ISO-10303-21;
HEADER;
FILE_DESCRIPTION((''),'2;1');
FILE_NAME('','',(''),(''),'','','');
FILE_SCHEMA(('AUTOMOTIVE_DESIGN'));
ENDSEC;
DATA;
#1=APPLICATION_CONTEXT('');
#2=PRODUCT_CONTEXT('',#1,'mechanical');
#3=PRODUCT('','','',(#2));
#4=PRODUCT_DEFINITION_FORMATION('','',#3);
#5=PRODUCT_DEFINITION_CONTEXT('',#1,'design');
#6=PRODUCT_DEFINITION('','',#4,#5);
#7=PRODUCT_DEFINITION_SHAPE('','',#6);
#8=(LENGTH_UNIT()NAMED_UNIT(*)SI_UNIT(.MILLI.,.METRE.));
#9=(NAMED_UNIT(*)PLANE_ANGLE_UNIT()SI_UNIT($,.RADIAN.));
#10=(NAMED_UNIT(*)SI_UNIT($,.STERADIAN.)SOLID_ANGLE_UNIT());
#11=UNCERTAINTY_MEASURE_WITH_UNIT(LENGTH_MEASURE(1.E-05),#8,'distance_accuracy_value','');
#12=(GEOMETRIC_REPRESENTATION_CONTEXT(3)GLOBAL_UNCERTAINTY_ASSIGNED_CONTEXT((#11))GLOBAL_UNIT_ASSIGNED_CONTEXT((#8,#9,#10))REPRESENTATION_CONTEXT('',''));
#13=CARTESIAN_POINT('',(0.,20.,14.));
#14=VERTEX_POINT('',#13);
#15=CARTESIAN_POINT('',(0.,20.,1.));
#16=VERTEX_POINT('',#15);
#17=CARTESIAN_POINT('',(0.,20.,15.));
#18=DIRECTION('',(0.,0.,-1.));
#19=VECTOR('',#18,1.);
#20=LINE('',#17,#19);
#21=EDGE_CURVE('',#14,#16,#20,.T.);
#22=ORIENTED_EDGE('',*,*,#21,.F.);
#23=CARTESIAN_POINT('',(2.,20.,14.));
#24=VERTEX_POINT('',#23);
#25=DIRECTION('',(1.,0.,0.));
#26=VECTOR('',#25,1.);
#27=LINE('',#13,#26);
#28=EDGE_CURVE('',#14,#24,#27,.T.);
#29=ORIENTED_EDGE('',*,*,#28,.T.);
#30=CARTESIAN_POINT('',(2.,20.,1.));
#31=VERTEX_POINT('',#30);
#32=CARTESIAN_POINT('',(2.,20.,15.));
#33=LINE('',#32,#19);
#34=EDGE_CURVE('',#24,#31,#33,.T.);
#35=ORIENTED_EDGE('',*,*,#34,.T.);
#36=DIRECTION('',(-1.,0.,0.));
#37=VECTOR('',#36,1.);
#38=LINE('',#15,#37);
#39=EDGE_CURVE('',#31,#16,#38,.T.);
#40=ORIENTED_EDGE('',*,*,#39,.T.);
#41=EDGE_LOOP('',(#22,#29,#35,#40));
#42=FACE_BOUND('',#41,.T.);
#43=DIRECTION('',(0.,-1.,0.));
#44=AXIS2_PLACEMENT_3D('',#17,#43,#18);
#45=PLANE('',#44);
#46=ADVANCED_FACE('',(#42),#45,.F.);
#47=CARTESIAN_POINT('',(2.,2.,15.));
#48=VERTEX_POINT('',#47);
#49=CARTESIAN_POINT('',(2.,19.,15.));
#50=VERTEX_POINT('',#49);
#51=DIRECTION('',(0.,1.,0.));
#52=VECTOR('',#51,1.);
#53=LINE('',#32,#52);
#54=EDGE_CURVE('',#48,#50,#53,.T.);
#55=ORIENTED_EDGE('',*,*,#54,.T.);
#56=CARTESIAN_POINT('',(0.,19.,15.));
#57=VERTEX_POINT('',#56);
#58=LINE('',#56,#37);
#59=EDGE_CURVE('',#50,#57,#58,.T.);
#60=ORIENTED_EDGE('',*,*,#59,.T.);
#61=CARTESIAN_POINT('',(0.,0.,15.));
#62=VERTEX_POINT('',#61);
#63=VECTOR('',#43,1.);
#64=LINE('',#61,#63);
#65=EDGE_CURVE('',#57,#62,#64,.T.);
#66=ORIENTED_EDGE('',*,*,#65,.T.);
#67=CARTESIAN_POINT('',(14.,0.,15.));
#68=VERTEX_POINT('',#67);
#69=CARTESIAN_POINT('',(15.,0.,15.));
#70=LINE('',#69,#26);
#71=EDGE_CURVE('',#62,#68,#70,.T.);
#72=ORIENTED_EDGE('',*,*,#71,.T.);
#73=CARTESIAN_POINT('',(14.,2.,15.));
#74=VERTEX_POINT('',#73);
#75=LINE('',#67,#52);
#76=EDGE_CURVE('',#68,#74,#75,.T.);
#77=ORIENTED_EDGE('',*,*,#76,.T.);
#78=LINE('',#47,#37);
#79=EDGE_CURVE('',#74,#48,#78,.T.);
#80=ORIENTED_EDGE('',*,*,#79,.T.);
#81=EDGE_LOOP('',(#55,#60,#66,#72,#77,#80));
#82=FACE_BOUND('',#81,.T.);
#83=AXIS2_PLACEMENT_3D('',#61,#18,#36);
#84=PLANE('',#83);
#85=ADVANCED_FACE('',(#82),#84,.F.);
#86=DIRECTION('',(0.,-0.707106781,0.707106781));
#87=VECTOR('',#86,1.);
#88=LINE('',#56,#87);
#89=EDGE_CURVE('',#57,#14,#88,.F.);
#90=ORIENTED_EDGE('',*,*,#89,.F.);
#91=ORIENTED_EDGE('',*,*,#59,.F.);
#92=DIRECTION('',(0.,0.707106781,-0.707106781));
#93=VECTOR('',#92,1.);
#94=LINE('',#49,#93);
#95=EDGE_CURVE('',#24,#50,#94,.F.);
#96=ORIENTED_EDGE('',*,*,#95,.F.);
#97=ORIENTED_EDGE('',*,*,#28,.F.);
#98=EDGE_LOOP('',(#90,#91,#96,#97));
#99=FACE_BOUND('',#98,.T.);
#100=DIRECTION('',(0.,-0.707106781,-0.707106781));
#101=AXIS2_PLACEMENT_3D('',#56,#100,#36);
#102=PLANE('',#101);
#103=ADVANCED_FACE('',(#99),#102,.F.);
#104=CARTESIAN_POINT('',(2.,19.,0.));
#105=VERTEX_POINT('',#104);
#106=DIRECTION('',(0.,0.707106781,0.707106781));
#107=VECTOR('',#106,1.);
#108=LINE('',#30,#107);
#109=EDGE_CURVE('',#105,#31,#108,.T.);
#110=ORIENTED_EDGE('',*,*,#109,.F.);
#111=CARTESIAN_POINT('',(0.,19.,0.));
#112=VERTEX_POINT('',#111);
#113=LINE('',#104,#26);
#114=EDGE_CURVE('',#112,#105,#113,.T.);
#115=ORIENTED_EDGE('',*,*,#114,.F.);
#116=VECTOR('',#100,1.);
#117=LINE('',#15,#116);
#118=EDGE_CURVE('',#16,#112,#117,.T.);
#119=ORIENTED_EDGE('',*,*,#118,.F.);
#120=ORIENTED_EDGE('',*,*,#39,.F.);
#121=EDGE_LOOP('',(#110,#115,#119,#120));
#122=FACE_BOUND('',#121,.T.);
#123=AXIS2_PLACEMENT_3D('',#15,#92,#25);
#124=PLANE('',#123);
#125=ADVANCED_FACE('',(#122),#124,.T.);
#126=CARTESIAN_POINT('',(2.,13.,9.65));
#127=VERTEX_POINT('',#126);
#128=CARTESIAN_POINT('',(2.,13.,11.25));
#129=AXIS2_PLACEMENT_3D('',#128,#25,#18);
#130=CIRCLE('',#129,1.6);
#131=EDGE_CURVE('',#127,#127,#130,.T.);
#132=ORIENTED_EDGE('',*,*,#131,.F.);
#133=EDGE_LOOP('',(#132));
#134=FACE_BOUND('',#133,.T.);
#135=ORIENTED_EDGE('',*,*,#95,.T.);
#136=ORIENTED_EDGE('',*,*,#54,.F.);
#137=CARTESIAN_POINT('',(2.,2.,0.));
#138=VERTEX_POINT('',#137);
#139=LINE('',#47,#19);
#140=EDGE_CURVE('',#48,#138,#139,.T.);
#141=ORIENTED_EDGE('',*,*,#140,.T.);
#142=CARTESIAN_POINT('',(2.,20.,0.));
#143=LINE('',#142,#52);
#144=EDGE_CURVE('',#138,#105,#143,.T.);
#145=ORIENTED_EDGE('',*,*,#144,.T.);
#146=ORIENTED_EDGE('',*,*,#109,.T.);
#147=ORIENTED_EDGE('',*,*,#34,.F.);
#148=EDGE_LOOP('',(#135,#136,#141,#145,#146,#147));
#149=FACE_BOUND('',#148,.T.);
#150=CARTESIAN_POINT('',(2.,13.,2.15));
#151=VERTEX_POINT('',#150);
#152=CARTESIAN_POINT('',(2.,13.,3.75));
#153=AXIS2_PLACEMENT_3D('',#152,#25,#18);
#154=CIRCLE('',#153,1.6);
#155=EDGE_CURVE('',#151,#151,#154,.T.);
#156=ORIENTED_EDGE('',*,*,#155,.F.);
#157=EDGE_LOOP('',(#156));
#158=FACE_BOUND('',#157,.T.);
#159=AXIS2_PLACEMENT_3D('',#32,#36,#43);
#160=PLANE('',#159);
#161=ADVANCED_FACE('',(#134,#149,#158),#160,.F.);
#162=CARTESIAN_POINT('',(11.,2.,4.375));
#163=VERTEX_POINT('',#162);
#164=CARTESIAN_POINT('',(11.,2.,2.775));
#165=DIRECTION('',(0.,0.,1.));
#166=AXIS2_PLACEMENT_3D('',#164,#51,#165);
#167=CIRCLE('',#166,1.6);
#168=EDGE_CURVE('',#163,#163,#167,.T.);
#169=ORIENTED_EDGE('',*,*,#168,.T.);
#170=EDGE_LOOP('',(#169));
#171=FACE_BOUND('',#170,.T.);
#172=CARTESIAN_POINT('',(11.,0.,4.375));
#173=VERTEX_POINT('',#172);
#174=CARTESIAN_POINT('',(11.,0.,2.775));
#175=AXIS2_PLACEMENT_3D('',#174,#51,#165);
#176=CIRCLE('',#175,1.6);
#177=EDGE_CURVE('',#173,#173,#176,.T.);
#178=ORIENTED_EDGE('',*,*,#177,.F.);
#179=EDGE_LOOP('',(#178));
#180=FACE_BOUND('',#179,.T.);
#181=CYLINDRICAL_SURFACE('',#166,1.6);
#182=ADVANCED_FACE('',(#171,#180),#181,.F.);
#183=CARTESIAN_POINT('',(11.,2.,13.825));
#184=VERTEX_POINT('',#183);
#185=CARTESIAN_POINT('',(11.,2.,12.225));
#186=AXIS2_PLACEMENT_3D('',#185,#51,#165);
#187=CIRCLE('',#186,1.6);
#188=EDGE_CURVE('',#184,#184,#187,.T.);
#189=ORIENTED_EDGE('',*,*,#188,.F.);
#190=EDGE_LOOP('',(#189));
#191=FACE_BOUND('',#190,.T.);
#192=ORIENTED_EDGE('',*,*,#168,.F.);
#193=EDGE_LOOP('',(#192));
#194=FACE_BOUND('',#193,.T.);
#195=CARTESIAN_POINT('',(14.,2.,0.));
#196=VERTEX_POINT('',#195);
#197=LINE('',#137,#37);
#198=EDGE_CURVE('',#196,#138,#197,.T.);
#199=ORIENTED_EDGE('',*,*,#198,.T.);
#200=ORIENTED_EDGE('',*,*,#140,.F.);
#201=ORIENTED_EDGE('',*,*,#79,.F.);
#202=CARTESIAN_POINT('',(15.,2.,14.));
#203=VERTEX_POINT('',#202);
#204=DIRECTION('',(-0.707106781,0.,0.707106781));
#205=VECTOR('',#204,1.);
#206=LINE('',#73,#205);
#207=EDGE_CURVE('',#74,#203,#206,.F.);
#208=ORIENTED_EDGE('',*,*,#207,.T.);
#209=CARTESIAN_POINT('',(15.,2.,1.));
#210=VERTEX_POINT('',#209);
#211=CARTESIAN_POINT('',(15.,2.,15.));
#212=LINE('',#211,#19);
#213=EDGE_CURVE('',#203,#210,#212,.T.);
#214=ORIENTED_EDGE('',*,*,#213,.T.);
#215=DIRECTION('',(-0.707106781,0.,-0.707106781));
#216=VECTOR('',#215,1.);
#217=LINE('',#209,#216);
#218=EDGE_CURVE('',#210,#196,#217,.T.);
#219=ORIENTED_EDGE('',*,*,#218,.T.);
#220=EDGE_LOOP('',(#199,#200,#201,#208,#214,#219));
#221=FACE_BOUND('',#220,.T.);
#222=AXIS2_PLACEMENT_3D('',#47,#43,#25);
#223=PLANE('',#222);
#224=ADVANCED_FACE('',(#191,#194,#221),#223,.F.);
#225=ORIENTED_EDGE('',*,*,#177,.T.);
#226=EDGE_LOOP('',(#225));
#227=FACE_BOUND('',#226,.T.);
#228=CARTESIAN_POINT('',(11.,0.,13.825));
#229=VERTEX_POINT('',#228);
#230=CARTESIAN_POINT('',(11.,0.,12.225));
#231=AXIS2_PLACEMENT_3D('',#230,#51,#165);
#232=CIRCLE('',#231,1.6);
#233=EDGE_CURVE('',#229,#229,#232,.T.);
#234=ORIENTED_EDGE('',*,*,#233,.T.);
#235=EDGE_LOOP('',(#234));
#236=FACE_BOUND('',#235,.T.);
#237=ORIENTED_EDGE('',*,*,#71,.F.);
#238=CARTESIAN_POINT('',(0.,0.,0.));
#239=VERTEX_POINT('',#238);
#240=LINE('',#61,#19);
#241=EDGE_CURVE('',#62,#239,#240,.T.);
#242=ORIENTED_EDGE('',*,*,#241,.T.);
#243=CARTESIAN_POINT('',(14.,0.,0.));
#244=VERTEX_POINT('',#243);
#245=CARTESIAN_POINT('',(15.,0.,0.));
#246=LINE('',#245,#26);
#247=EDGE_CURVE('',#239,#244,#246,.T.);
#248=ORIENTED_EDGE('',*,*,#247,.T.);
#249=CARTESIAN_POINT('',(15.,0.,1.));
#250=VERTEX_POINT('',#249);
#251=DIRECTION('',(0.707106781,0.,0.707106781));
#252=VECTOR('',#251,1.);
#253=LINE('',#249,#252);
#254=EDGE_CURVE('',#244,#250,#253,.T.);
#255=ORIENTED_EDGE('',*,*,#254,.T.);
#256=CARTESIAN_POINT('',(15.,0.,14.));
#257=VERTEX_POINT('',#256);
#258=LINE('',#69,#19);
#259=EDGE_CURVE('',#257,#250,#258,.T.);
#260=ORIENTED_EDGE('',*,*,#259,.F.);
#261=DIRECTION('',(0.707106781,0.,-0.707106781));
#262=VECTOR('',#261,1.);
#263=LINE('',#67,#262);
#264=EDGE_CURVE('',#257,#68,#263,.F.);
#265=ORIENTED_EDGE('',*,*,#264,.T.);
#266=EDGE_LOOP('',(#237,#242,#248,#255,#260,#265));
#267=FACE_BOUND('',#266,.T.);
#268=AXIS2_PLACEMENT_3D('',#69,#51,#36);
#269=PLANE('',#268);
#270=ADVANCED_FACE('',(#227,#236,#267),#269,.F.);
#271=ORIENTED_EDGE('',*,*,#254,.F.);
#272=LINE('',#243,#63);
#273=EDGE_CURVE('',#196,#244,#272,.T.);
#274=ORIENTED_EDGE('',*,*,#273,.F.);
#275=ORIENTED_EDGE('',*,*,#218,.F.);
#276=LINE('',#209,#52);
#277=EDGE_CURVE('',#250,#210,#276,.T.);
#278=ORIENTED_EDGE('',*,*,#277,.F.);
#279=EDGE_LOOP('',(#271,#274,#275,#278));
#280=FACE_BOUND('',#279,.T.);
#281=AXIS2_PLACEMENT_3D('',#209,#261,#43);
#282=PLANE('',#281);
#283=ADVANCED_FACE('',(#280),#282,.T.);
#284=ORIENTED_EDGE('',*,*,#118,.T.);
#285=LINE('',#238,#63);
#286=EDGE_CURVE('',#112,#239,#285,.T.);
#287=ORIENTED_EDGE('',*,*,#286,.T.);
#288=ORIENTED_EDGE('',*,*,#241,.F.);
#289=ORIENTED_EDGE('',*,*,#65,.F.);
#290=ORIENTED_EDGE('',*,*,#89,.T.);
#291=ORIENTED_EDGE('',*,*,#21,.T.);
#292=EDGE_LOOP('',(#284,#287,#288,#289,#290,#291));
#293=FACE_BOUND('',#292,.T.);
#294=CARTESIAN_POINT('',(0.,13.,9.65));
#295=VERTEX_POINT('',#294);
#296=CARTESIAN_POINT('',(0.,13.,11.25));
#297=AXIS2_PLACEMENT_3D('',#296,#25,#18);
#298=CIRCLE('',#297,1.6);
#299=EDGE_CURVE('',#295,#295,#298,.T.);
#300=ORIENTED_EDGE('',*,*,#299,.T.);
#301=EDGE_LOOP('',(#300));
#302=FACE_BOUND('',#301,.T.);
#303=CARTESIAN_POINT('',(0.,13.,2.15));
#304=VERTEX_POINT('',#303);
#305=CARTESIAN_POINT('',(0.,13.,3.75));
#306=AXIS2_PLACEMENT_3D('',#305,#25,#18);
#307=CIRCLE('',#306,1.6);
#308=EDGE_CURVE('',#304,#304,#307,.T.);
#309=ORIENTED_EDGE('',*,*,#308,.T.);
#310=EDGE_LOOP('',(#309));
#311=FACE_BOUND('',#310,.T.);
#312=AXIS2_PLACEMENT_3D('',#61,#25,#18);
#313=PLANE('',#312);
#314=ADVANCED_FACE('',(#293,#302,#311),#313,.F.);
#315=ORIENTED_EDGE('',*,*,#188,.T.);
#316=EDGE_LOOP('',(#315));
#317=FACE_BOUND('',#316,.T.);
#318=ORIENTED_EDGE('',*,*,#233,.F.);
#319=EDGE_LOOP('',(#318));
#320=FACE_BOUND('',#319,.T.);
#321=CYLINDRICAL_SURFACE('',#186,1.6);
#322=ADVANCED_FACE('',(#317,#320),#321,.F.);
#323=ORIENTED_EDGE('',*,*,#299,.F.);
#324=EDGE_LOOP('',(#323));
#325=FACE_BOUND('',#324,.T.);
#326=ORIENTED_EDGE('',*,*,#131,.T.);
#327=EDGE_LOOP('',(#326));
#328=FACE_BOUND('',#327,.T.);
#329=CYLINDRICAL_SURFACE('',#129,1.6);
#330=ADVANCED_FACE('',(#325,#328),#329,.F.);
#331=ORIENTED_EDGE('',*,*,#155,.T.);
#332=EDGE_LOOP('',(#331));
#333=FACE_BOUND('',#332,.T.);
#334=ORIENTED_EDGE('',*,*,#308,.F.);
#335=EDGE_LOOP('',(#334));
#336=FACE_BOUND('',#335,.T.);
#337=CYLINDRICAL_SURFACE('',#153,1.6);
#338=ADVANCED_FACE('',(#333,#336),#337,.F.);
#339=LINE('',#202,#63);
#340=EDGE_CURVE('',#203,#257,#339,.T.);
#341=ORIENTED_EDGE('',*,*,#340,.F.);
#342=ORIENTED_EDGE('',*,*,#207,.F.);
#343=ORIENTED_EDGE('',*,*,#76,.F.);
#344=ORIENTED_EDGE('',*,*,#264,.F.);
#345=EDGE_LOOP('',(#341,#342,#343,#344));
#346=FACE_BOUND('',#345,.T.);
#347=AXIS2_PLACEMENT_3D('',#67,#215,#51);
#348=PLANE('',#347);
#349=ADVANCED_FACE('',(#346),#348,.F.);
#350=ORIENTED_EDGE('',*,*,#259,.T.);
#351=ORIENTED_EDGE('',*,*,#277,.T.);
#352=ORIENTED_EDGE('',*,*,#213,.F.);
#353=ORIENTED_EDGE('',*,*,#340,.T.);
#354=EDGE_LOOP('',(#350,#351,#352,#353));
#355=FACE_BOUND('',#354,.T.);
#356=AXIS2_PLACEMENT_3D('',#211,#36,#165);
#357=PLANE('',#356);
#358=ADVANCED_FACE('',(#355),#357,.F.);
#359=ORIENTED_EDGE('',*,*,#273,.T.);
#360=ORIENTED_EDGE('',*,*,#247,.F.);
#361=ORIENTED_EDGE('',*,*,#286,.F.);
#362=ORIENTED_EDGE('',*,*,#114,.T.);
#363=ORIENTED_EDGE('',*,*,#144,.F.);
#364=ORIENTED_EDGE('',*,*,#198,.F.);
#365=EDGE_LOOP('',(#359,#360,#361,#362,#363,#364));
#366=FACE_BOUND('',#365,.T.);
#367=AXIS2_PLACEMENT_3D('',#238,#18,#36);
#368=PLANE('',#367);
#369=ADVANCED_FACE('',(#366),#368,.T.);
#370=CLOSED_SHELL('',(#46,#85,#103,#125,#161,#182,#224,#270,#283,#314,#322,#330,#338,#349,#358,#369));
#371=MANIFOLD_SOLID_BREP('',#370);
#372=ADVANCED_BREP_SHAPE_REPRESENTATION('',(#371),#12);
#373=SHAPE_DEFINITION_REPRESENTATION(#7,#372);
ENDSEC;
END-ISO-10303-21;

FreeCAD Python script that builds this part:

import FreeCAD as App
import Part
import Sketcher
Q = App.Units.Quantity


def edges_at(feature, points):
    """Names of the edges that pass closest to the given points."""
    edges = feature.Shape.Edges
    near = lambda p: min(range(len(edges)), key=lambda i: edges[i].distToShape(Part.Vertex(*p))[0])
    return sorted({f"Edge{near(p) + 1}" for p in points})

doc = App.newDocument("Part")
params = doc.addObject("Spreadsheet::Sheet", "Params")
for row, (alias, value) in enumerate([
    ("sketch1_width", "15 mm"),
    ("sketch1_width2", "13 mm"),
    ("sketch1_height", "20 mm"),
    ("pad1_length", "15 mm"),
    ("chamfer_size", "1 mm"),
    ("sketch2_diameter", "3.2 mm"),
    ("hole_diameter", "3.2 mm"),
    ("sketch3_diameter", "3.2 mm"),
    ("hole2_diameter", "3.2 mm"),
], start=1):
    params.set(f"A{row}", alias)
    params.set(f"B{row}", "=" + value)
    params.setAlias(f"B{row}", alias)

body = doc.addObject("PartDesign::Body", "Body")

sketch1 = doc.addObject("Sketcher::SketchObject", "Sketch")
body.addObject(sketch1)
sketch1.AttachmentSupport = (doc.XY_Plane, [""])
sketch1.MapMode = "FlatFace"
sketch1.addGeometry(Part.LineSegment(App.Vector(0, 20, 0), App.Vector(0, 0, 0)), False)
sketch1.addGeometry(Part.LineSegment(App.Vector(0, 0, 0), App.Vector(15, 0, 0)), False)
sketch1.addGeometry(Part.LineSegment(App.Vector(15, 0, 0), App.Vector(15, 2, 0)), False)
sketch1.addGeometry(Part.LineSegment(App.Vector(15, 2, 0), App.Vector(2, 2, 0)), False)
sketch1.addGeometry(Part.LineSegment(App.Vector(2, 2, 0), App.Vector(2, 20, 0)), False)
sketch1.addGeometry(Part.LineSegment(App.Vector(2, 20, 0), App.Vector(0, 20, 0)), False)
sketch1.addConstraint(Sketcher.Constraint("Coincident", 0, 2, 1, 1))
sketch1.addConstraint(Sketcher.Constraint("Coincident", 1, 2, 2, 1))
sketch1.addConstraint(Sketcher.Constraint("Coincident", 2, 2, 3, 1))
sketch1.addConstraint(Sketcher.Constraint("Coincident", 3, 2, 4, 1))
sketch1.addConstraint(Sketcher.Constraint("Coincident", 4, 2, 5, 1))
sketch1.addConstraint(Sketcher.Constraint("Coincident", 5, 2, 0, 1))
sketch1.addConstraint(Sketcher.Constraint("Vertical", 0))
sketch1.addConstraint(Sketcher.Constraint("Horizontal", 1))
sketch1.addConstraint(Sketcher.Constraint("Vertical", 2))
sketch1.addConstraint(Sketcher.Constraint("Horizontal", 3))
sketch1.addConstraint(Sketcher.Constraint("Vertical", 4))
sketch1.addConstraint(Sketcher.Constraint("Horizontal", 5))
sketch1.addConstraint(Sketcher.Constraint("Coincident", 0, 2, -1, 1))
sketch1.addConstraint(Sketcher.Constraint("Equal", 5, 2))
sketch1.addConstraint(Sketcher.Constraint("DistanceX", 1, 1, 1, 2, Q("15 mm")))
sketch1.addConstraint(Sketcher.Constraint("DistanceX", 3, 2, 3, 1, Q("13 mm")))
sketch1.addConstraint(Sketcher.Constraint("DistanceY", 0, 2, 0, 1, Q("20 mm")))
sketch1.setExpression("Constraints[14]", "Params.sketch1_width")
sketch1.setExpression("Constraints[15]", "Params.sketch1_width2")
sketch1.setExpression("Constraints[16]", "Params.sketch1_height")
pad1 = doc.addObject("PartDesign::Pad", "Pad")
body.addObject(pad1)
pad1.Profile = sketch1
pad1.setExpression("Length", "Params.pad1_length")
doc.recompute()

chamfer = doc.addObject("PartDesign::Chamfer", "Chamfer")
body.addObject(chamfer)
chamfer.Base = (pad1, edges_at(pad1, [
    (1, 20, 15),
    (1, 20, 0),
    (15, 1, 15),
    (15, 1, 0),
]))
chamfer.setExpression("Size", "Params.chamfer_size")

sketch2 = doc.addObject("Sketcher::SketchObject", "Sketch001")
body.addObject(sketch2)
sketch2.AttachmentSupport = (doc.XZ_Plane, [""])
sketch2.MapMode = "FlatFace"
sketch2.AttachmentOffset = App.Placement(App.Vector(0, 0, -2), App.Rotation())
sketch2.addGeometry(Part.Circle(App.Vector(11, 2.775, 0), App.Vector(0, 0, 1), 1.6), False)
sketch2.addGeometry(Part.Circle(App.Vector(11, 12.225, 0), App.Vector(0, 0, 1), 1.6), False)
sketch2.addConstraint(Sketcher.Constraint("Equal", 0, 1))
sketch2.addConstraint(Sketcher.Constraint("Vertical", 0, 3, 1, 3))
sketch2.addConstraint(Sketcher.Constraint("Diameter", 0, Q("3.2 mm")))
sketch2.addConstraint(Sketcher.Constraint("DistanceX", -1, 1, 0, 3, Q("11 mm")))
sketch2.addConstraint(Sketcher.Constraint("DistanceY", 0, 3, 1, 3, Q("9.45 mm")))
sketch2.addConstraint(Sketcher.Constraint("DistanceY", -1, 1, 0, 3, Q("2.775 mm")))
sketch2.setExpression("Constraints[2]", "Params.sketch2_diameter")
doc.recompute()
hole = doc.addObject("PartDesign::Hole", "Hole")
body.addObject(hole)
hole.Profile = sketch2
hole.ThreadType = "None"
hole.setExpression("Diameter", "Params.hole_diameter")
hole.DepthType = "ThroughAll"
hole.Reversed = True

sketch3 = doc.addObject("Sketcher::SketchObject", "Sketch002")
body.addObject(sketch3)
sketch3.AttachmentSupport = (doc.YZ_Plane, [""])
sketch3.MapMode = "FlatFace"
sketch3.AttachmentOffset = App.Placement(App.Vector(0, 0, 2), App.Rotation())
sketch3.addGeometry(Part.Circle(App.Vector(13, 11.25, 0), App.Vector(0, 0, 1), 1.6), False)
sketch3.addGeometry(Part.Circle(App.Vector(13, 3.75, 0), App.Vector(0, 0, 1), 1.6), False)
sketch3.addConstraint(Sketcher.Constraint("Equal", 0, 1))
sketch3.addConstraint(Sketcher.Constraint("Vertical", 0, 3, 1, 3))
sketch3.addConstraint(Sketcher.Constraint("Diameter", 0, Q("3.2 mm")))
sketch3.addConstraint(Sketcher.Constraint("DistanceX", -1, 1, 0, 3, Q("13 mm")))
sketch3.addConstraint(Sketcher.Constraint("DistanceY", 1, 3, 0, 3, Q("7.5 mm")))
sketch3.addConstraint(Sketcher.Constraint("DistanceY", -1, 1, 0, 3, Q("11.25 mm")))
sketch3.setExpression("Constraints[2]", "Params.sketch3_diameter")
doc.recompute()
hole2 = doc.addObject("PartDesign::Hole", "Hole001")
body.addObject(hole2)
hole2.Profile = sketch3
hole2.ThreadType = "None"
hole2.setExpression("Diameter", "Params.hole2_diameter")
hole2.DepthType = "ThroughAll"

doc.recompute()
